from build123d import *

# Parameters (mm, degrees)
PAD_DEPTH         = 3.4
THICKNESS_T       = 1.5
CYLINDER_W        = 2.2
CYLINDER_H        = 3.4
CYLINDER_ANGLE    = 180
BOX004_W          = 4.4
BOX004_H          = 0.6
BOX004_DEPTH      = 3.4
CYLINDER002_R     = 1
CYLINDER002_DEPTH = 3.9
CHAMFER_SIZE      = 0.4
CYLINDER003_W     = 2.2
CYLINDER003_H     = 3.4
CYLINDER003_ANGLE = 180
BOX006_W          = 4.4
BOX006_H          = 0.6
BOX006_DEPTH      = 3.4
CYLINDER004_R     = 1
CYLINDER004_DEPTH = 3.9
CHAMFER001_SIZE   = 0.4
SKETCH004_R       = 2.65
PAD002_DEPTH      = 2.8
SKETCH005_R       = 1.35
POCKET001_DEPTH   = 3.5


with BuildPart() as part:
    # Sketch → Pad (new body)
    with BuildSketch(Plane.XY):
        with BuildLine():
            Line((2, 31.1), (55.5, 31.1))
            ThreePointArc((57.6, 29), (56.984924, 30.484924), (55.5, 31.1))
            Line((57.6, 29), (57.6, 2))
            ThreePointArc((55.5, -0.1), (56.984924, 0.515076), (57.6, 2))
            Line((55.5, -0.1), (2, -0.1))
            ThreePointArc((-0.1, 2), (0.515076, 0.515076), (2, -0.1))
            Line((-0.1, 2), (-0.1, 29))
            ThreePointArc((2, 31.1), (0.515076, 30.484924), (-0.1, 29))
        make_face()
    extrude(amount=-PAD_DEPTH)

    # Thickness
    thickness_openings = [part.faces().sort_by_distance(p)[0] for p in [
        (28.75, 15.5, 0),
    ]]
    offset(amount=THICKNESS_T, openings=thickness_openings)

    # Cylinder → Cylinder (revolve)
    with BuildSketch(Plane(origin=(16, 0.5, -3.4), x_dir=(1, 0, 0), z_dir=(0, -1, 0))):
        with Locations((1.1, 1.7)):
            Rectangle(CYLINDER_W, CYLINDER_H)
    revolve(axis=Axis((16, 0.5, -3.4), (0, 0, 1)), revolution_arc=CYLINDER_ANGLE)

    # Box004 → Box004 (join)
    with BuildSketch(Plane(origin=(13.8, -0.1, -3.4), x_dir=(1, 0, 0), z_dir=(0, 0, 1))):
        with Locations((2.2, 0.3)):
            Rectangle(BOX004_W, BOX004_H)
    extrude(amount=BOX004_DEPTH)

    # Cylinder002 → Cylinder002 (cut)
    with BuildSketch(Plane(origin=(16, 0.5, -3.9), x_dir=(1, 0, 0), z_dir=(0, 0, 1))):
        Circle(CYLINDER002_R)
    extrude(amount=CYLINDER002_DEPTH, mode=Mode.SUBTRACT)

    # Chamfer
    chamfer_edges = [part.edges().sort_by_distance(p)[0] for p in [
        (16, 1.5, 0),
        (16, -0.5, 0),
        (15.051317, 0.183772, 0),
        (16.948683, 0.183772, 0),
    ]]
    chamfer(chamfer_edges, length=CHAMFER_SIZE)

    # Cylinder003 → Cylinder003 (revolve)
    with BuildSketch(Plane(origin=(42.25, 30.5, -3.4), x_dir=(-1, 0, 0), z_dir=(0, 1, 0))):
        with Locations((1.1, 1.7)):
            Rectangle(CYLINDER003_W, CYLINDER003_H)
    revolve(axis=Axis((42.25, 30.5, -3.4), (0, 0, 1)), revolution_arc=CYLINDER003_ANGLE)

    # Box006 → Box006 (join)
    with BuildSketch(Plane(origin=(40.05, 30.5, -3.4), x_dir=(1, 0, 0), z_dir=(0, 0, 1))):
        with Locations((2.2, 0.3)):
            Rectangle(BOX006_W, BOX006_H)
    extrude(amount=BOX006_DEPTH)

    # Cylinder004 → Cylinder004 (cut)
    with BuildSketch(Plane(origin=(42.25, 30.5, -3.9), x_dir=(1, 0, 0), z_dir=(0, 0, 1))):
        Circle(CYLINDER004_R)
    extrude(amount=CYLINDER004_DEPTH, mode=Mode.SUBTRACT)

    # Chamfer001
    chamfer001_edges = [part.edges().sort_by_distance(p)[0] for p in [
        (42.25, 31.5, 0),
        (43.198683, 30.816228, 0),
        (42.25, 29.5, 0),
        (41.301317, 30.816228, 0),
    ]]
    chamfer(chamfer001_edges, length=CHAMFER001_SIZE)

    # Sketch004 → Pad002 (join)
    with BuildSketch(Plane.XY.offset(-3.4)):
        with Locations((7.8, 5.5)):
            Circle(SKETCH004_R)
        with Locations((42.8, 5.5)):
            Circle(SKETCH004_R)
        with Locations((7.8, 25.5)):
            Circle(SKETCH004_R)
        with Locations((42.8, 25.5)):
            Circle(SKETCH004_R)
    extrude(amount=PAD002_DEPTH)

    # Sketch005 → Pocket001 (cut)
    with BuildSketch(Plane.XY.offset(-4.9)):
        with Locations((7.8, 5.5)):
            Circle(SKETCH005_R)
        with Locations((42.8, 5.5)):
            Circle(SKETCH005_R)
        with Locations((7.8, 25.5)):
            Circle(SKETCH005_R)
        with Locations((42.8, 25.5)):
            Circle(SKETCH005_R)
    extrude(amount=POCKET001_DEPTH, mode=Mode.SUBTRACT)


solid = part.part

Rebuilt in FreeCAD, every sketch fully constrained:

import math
import FreeCAD as App
import Part
import Sketcher

V = App.Vector


def edges_at(feature, points):
    """Names of the edges that pass closest to the given points."""
    edges = feature.Shape.Edges
    near = lambda p: min(range(len(edges)), key=lambda i: edges[i].distToShape(Part.Vertex(*p))[0])
    return sorted({f"Edge{near(p) + 1}" for p in points})


def faces_at(feature, points):
    """Names of the faces that lie closest to the given points."""
    faces = feature.Shape.Faces
    near = lambda p: min(range(len(faces)), key=lambda i: faces[i].distToShape(Part.Vertex(*p))[0])
    return sorted({f"Face{near(p) + 1}" for p in points})

doc = App.newDocument("Part")
params = doc.addObject("Spreadsheet::Sheet", "Params")
for row, (alias, value) in enumerate([
    ("sketch1_radius", "2.100001 mm"),
    ("sketch1_height", "27 mm"),
    ("sketch1_width", "53.5 mm"),
    ("pad1_length", "3.4 mm"),
    ("thickness_wall", "1.5 mm"),
    ("sketch2_width", "2.2 mm"),
    ("sketch2_height", "3.4 mm"),
    ("revolution_angle", "180 deg"),
    ("sketch3_width", "4.4 mm"),
    ("sketch3_height", "0.6 mm"),
    ("pad2_length", "3.4 mm"),
    ("sketch4_diameter", "2 mm"),
    ("pocket1_length", "3.9 mm"),
    ("chamfer_size", "0.4 mm"),
    ("sketch5_width", "2.2 mm"),
    ("sketch5_height", "3.4 mm"),
    ("revolution2_angle", "180 deg"),
    ("sketch6_width", "4.4 mm"),
    ("sketch6_height", "0.6 mm"),
    ("pad3_length", "3.4 mm"),
    ("sketch7_diameter", "2 mm"),
    ("pocket2_length", "3.9 mm"),
    ("chamfer2_size", "0.4 mm"),
    ("sketch8_diameter", "5.3 mm"),
    ("pad4_length", "2.8 mm"),
    ("sketch9_diameter", "2.7 mm"),
    ("pocket3_length", "3.5 mm"),
], start=1):
    params.set(f"A{row}", alias)
    params.set(f"B{row}", "=" + value)
    params.setAlias(f"B{row}", alias)

body = doc.addObject("PartDesign::Body", "Body")

sketch1 = body.newObject("Sketcher::SketchObject", "Sketch")
sketch1.AttachmentSupport = (doc.getObject("XY_Plane"), [""])
sketch1.MapMode = "FlatFace"
sketch1.addGeometry([
    Part.LineSegment(V(55.5, 31.1, 0), V(2, 31.1, 0)),
    Part.ArcOfCircle(Part.Circle(V(2.000001, 28.999999, 0), V(0, 0, 1), 2.100001), math.radians(90.000022), math.radians(179.999978)),
    Part.LineSegment(V(-0.1, 29, 0), V(-0.1, 2, 0)),
    Part.ArcOfCircle(Part.Circle(V(2.000001, 2.000001, 0), V(0, 0, 1), 2.100001), math.radians(-179.999978), math.radians(-90.000022)),
    Part.LineSegment(V(2, -0.1, 0), V(55.5, -0.1, 0)),
    Part.ArcOfCircle(Part.Circle(V(55.499999, 2.000001, 0), V(0, 0, 1), 2.100001), math.radians(-89.999978), math.radians(-0.000022)),
    Part.LineSegment(V(57.6, 2, 0), V(57.6, 29, 0)),
    Part.ArcOfCircle(Part.Circle(V(55.499999, 28.999999, 0), V(0, 0, 1), 2.100001), math.radians(0.000022), math.radians(89.999978)),
], False)
sketch1.addConstraint([
    Sketcher.Constraint("Tangent", 0, 2, 1, 1),
    Sketcher.Constraint("Tangent", 1, 2, 2, 1),
    Sketcher.Constraint("Tangent", 2, 2, 3, 1),
    Sketcher.Constraint("Tangent", 3, 2, 4, 1),
    Sketcher.Constraint("Tangent", 4, 2, 5, 1),
    Sketcher.Constraint("Tangent", 5, 2, 6, 1),
    Sketcher.Constraint("Tangent", 6, 2, 7, 1),
    Sketcher.Constraint("Tangent", 7, 2, 0, 1),
    Sketcher.Constraint("Horizontal", 0),
    Sketcher.Constraint("Vertical", 2),
    Sketcher.Constraint("Horizontal", 4),
    Sketcher.Constraint("Vertical", 6),
    Sketcher.Constraint("Equal", 1, 3),
    Sketcher.Constraint("Equal", 3, 5),
    Sketcher.Constraint("Equal", 5, 7),
    Sketcher.Constraint("Radius", 1, 2.100001),
    Sketcher.Constraint("DistanceY", 2, 2, 2, 1, 27.0),
    Sketcher.Constraint("DistanceX", 0, 2, 0, 1, 53.5),
    Sketcher.Constraint("DistanceX", -1, 1, 1, 3, 2.000001),
    Sketcher.Constraint("DistanceY", -1, 1, 1, 3, 28.999999),
])
sketch1.setExpression("Constraints[15]", "Params.sketch1_radius")
sketch1.setExpression("Constraints[16]", "Params.sketch1_height")
sketch1.setExpression("Constraints[17]", "Params.sketch1_width")
pad1 = body.newObject("PartDesign::Pad", "Pad")
pad1.Profile = sketch1
pad1.setExpression("Length", "Params.pad1_length")
pad1.Reversed = True
doc.recompute()

thickness = body.newObject("PartDesign::Thickness", "Thickness")
thickness.Base = (pad1, faces_at(pad1, [(28.75, 15.5, 0)]))
thickness.setExpression("Value", "Params.thickness_wall")
thickness.Reversed = False
thickness.Join = "Arc"

sketch2 = body.newObject("Sketcher::SketchObject", "Sketch001")
sketch2.AttachmentSupport = (doc.getObject("XZ_Plane"), [""])
sketch2.MapMode = "FlatFace"
sketch2.AttachmentOffset = App.Placement(V(0, 0, -0.5), App.Rotation())
sketch2.addGeometry([
    Part.LineSegment(V(16, 0, 0), V(16, -3.4, 0)),
    Part.LineSegment(V(16, -3.4, 0), V(18.2, -3.4, 0)),
    Part.LineSegment(V(18.2, -3.4, 0), V(18.2, 0, 0)),
    Part.LineSegment(V(18.2, 0, 0), V(16, 0, 0)),
], False)
sketch2.addGeometry(Part.LineSegment(V(16, -3.4, 0), V(16, 0, 0)), True)
sketch2.addConstraint([
    Sketcher.Constraint("Coincident", 0, 2, 1, 1),
    Sketcher.Constraint("Coincident", 1, 2, 2, 1),
    Sketcher.Constraint("Coincident", 2, 2, 3, 1),
    Sketcher.Constraint("Coincident", 3, 2, 0, 1),
    Sketcher.Constraint("Vertical", 0),
    Sketcher.Constraint("Horizontal", 1),
    Sketcher.Constraint("Vertical", 2),
    Sketcher.Constraint("Horizontal", 3),
    Sketcher.Constraint("Vertical", 4),
    Sketcher.Constraint("Coincident", 4, 1, 0, 2),
    Sketcher.Constraint("PointOnObject", 2, 2, -1),
    Sketcher.Constraint("PointOnObject", 4, 2, -1),
    Sketcher.Constraint("DistanceX", 1, 1, 1, 2, 2.2),
    Sketcher.Constraint("DistanceY", 0, 2, 0, 1, 3.4),
    Sketcher.Constraint("DistanceX", -1, 1, 0, 2, 16.0),
])
sketch2.setExpression("Constraints[12]", "Params.sketch2_width")
sketch2.setExpression("Constraints[13]", "Params.sketch2_height")
revolution = body.newObject("PartDesign::Revolution", "Revolution")
revolution.Profile = sketch2
revolution.ReferenceAxis = (sketch2, ["Axis0"])
revolution.setExpression("Angle", "Params.revolution_angle")

sketch3 = body.newObject("Sketcher::SketchObject", "Sketch002")
sketch3.AttachmentSupport = (doc.getObject("XY_Plane"), [""])
sketch3.MapMode = "FlatFace"
sketch3.AttachmentOffset = App.Placement(V(0, 0, -3.4), App.Rotation())
sketch3.addGeometry([
    Part.LineSegment(V(13.8, 0.5, 0), V(13.8, -0.1, 0)),
    Part.LineSegment(V(13.8, -0.1, 0), V(18.2, -0.1, 0)),
    Part.LineSegment(V(18.2, -0.1, 0), V(18.2, 0.5, 0)),
    Part.LineSegment(V(18.2, 0.5, 0), V(13.8, 0.5, 0)),
], False)
sketch3.addConstraint([
    Sketcher.Constraint("Coincident", 0, 2, 1, 1),
    Sketcher.Constraint("Coincident", 1, 2, 2, 1),
    Sketcher.Constraint("Coincident", 2, 2, 3, 1),
    Sketcher.Constraint("Coincident", 3, 2, 0, 1),
    Sketcher.Constraint("Vertical", 0),
    Sketcher.Constraint("Horizontal", 1),
    Sketcher.Constraint("Vertical", 2),
    Sketcher.Constraint("Horizontal", 3),
    Sketcher.Constraint("DistanceX", 1, 1, 1, 2, 4.4),
    Sketcher.Constraint("DistanceY", 0, 2, 0, 1, 0.6),
    Sketcher.Constraint("DistanceX", -1, 1, 0, 2, 13.8),
    Sketcher.Constraint("DistanceY", 0, 2, -1, 1, 0.1),
])
sketch3.setExpression("Constraints[8]", "Params.sketch3_width")
sketch3.setExpression("Constraints[9]", "Params.sketch3_height")
pad2 = body.newObject("PartDesign::Pad", "Pad001")
pad2.Profile = sketch3
pad2.setExpression("Length", "Params.pad2_length")

sketch4 = body.newObject("Sketcher::SketchObject", "Sketch003")
sketch4.AttachmentSupport = (doc.getObject("XY_Plane"), [""])
sketch4.MapMode = "FlatFace"
sketch4.AttachmentOffset = App.Placement(V(0, 0, -3.9), App.Rotation())
sketch4.addGeometry(Part.Circle(V(16, 0.5, 0), V(0, 0, 1), 1), False)
sketch4.addConstraint([
    Sketcher.Constraint("Diameter", 0, 2.0),
    Sketcher.Constraint("DistanceX", -1, 1, 0, 3, 16.0),
    Sketcher.Constraint("DistanceY", -1, 1, 0, 3, 0.5),
])
sketch4.setExpression("Constraints[0]", "Params.sketch4_diameter")
pocket1 = body.newObject("PartDesign::Pocket", "Pocket")
pocket1.Profile = sketch4
pocket1.setExpression("Length", "Params.pocket1_length")
pocket1.Reversed = True
doc.recompute()

chamfer = body.newObject("PartDesign::Chamfer", "Chamfer")
chamfer.Base = (pocket1, edges_at(pocket1, [
    (15, 0.5, 0),
    (15, 0.5, 0),
    (15, 0.5, 0),
    (15, 0.5, 0),
]))
chamfer.setExpression("Size", "Params.chamfer_size")

sketch5 = body.newObject("Sketcher::SketchObject", "Sketch004")
sketch5.AttachmentSupport = (doc.getObject("XZ_Plane"), [""])
sketch5.MapMode = "FlatFace"
sketch5.AttachmentOffset = App.Placement(V(0, 0, -30.5), App.Rotation())
sketch5.addGeometry([
    Part.LineSegment(V(42.25, 0, 0), V(42.25, -3.4, 0)),
    Part.LineSegment(V(42.25, -3.4, 0), V(40.05, -3.4, 0)),
    Part.LineSegment(V(40.05, -3.4, 0), V(40.05, 0, 0)),
    Part.LineSegment(V(40.05, 0, 0), V(42.25, 0, 0)),
], False)
sketch5.addGeometry(Part.LineSegment(V(42.25, -3.4, 0), V(42.25, 0, 0)), True)
sketch5.addConstraint([
    Sketcher.Constraint("Coincident", 0, 2, 1, 1),
    Sketcher.Constraint("Coincident", 1, 2, 2, 1),
    Sketcher.Constraint("Coincident", 2, 2, 3, 1),
    Sketcher.Constraint("Coincident", 3, 2, 0, 1),
    Sketcher.Constraint("Vertical", 0),
    Sketcher.Constraint("Horizontal", 1),
    Sketcher.Constraint("Vertical", 2),
    Sketcher.Constraint("Horizontal", 3),
    Sketcher.Constraint("Vertical", 4),
    Sketcher.Constraint("Coincident", 4, 1, 0, 2),
    Sketcher.Constraint("PointOnObject", 2, 2, -1),
    Sketcher.Constraint("PointOnObject", 4, 2, -1),
    Sketcher.Constraint("DistanceX", 1, 2, 1, 1, 2.2),
    Sketcher.Constraint("DistanceY", 0, 2, 0, 1, 3.4),
    Sketcher.Constraint("DistanceX", -1, 1, 0, 2, 42.25),
])
sketch5.setExpression("Constraints[12]", "Params.sketch5_width")
sketch5.setExpression("Constraints[13]", "Params.sketch5_height")
revolution2 = body.newObject("PartDesign::Revolution", "Revolution001")
revolution2.Profile = sketch5
revolution2.ReferenceAxis = (sketch5, ["Axis0"])
revolution2.setExpression("Angle", "Params.revolution2_angle")

sketch6 = body.newObject("Sketcher::SketchObject", "Sketch005")
sketch6.AttachmentSupport = (doc.getObject("XY_Plane"), [""])
sketch6.MapMode = "FlatFace"
sketch6.AttachmentOffset = App.Placement(V(0, 0, -3.4), App.Rotation())
sketch6.addGeometry([
    Part.LineSegment(V(40.05, 31.1, 0), V(40.05, 30.5, 0)),
    Part.LineSegment(V(40.05, 30.5, 0), V(44.45, 30.5, 0)),
    Part.LineSegment(V(44.45, 30.5, 0), V(44.45, 31.1, 0)),
    Part.LineSegment(V(44.45, 31.1, 0), V(40.05, 31.1, 0)),
], False)
sketch6.addConstraint([
    Sketcher.Constraint("Coincident", 0, 2, 1, 1),
    Sketcher.Constraint("Coincident", 1, 2, 2, 1),
    Sketcher.Constraint("Coincident", 2, 2, 3, 1),
    Sketcher.Constraint("Coincident", 3, 2, 0, 1),
    Sketcher.Constraint("Vertical", 0),
    Sketcher.Constraint("Horizontal", 1),
    Sketcher.Constraint("Vertical", 2),
    Sketcher.Constraint("Horizontal", 3),
    Sketcher.Constraint("DistanceX", 1, 1, 1, 2, 4.4),
    Sketcher.Constraint("DistanceY", 0, 2, 0, 1, 0.6),
    Sketcher.Constraint("DistanceY", -1, 1, 0, 2, 30.5),
    Sketcher.Constraint("DistanceX", -1, 1, 0, 2, 40.05),
])
sketch6.setExpression("Constraints[8]", "Params.sketch6_width")
sketch6.setExpression("Constraints[9]", "Params.sketch6_height")
pad3 = body.newObject("PartDesign::Pad", "Pad002")
pad3.Profile = sketch6
pad3.setExpression("Length", "Params.pad3_length")

sketch7 = body.newObject("Sketcher::SketchObject", "Sketch006")
sketch7.AttachmentSupport = (doc.getObject("XY_Plane"), [""])
sketch7.MapMode = "FlatFace"
sketch7.AttachmentOffset = App.Placement(V(0, 0, -3.9), App.Rotation())
sketch7.addGeometry(Part.Circle(V(42.25, 30.5, 0), V(0, 0, 1), 1), False)
sketch7.addConstraint([
    Sketcher.Constraint("Diameter", 0, 2.0),
    Sketcher.Constraint("DistanceY", -1, 1, 0, 3, 30.5),
    Sketcher.Constraint("DistanceX", -1, 1, 0, 3, 42.25),
])
sketch7.setExpression("Constraints[0]", "Params.sketch7_diameter")
pocket2 = body.newObject("PartDesign::Pocket", "Pocket001")
pocket2.Profile = sketch7
pocket2.setExpression("Length", "Params.pocket2_length")
pocket2.Reversed = True
doc.recompute()

chamfer2 = body.newObject("PartDesign::Chamfer", "Chamfer001")
chamfer2.Base = (pocket2, edges_at(pocket2, [
    (41.25, 30.5, 0),
    (41.25, 30.5, 0),
    (41.25, 30.5, 0),
    (41.25, 30.5, 0),
]))
chamfer2.setExpression("Size", "Params.chamfer2_size")

sketch8 = body.newObject("Sketcher::SketchObject", "Sketch007")
sketch8.AttachmentSupport = (doc.getObject("XY_Plane"), [""])
sketch8.MapMode = "FlatFace"
sketch8.AttachmentOffset = App.Placement(V(0, 0, -3.4), App.Rotation())
sketch8.addGeometry([
    Part.Circle(V(7.8, 5.5, 0), V(0, 0, 1), 2.65),
    Part.Circle(V(42.8, 5.5, 0), V(0, 0, 1), 2.65),
    Part.Circle(V(7.8, 25.5, 0), V(0, 0, 1), 2.65),
    Part.Circle(V(42.8, 25.5, 0), V(0, 0, 1), 2.65),
], False)
sketch8.addConstraint([
    Sketcher.Constraint("Equal", 0, 1),
    Sketcher.Constraint("Equal", 1, 2),
    Sketcher.Constraint("Equal", 2, 3),
    Sketcher.Constraint("Horizontal", 0, 3, 1, 3),
    Sketcher.Constraint("Horizontal", 2, 3, 3, 3),
    Sketcher.Constraint("Vertical", 0, 3, 2, 3),
    Sketcher.Constraint("Vertical", 1, 3, 3, 3),
    Sketcher.Constraint("Diameter", 0, 5.3),
    Sketcher.Constraint("DistanceX", 0, 3, 1, 3, 35.0),
    Sketcher.Constraint("DistanceY", 0, 3, 2, 3, 20.0),
    Sketcher.Constraint("DistanceX", -1, 1, 0, 3, 7.8),
    Sketcher.Constraint("DistanceY", -1, 1, 0, 3, 5.5),
])
sketch8.setExpression("Constraints[7]", "Params.sketch8_diameter")
pad4 = body.newObject("PartDesign::Pad", "Pad003")
pad4.Profile = sketch8
pad4.setExpression("Length", "Params.pad4_length")

sketch9 = body.newObject("Sketcher::SketchObject", "Sketch008")
sketch9.AttachmentSupport = (doc.getObject("XY_Plane"), [""])
sketch9.MapMode = "FlatFace"
sketch9.AttachmentOffset = App.Placement(V(0, 0, -4.9), App.Rotation())
sketch9.addGeometry([
    Part.Circle(V(7.8, 5.5, 0), V(0, 0, 1), 1.35),
    Part.Circle(V(42.8, 5.5, 0), V(0, 0, 1), 1.35),
    Part.Circle(V(7.8, 25.5, 0), V(0, 0, 1), 1.35),
    Part.Circle(V(42.8, 25.5, 0), V(0, 0, 1), 1.35),
], False)
sketch9.addConstraint([
    Sketcher.Constraint("Equal", 0, 1),
    Sketcher.Constraint("Equal", 1, 2),
    Sketcher.Constraint("Equal", 2, 3),
    Sketcher.Constraint("Horizontal", 0, 3, 1, 3),
    Sketcher.Constraint("Horizontal", 2, 3, 3, 3),
    Sketcher.Constraint("Vertical", 0, 3, 2, 3),
    Sketcher.Constraint("Vertical", 1, 3, 3, 3),
    Sketcher.Constraint("Diameter", 0, 2.7),
    Sketcher.Constraint("DistanceX", 0, 3, 1, 3, 35.0),
    Sketcher.Constraint("DistanceY", 0, 3, 2, 3, 20.0),
    Sketcher.Constraint("DistanceX", -1, 1, 0, 3, 7.8),
    Sketcher.Constraint("DistanceY", -1, 1, 0, 3, 5.5),
])
sketch9.setExpression("Constraints[7]", "Params.sketch9_diameter")
pocket3 = body.newObject("PartDesign::Pocket", "Pocket002")
pocket3.Profile = sketch9
pocket3.setExpression("Length", "Params.pocket3_length")
pocket3.Reversed = True

doc.recompute()
